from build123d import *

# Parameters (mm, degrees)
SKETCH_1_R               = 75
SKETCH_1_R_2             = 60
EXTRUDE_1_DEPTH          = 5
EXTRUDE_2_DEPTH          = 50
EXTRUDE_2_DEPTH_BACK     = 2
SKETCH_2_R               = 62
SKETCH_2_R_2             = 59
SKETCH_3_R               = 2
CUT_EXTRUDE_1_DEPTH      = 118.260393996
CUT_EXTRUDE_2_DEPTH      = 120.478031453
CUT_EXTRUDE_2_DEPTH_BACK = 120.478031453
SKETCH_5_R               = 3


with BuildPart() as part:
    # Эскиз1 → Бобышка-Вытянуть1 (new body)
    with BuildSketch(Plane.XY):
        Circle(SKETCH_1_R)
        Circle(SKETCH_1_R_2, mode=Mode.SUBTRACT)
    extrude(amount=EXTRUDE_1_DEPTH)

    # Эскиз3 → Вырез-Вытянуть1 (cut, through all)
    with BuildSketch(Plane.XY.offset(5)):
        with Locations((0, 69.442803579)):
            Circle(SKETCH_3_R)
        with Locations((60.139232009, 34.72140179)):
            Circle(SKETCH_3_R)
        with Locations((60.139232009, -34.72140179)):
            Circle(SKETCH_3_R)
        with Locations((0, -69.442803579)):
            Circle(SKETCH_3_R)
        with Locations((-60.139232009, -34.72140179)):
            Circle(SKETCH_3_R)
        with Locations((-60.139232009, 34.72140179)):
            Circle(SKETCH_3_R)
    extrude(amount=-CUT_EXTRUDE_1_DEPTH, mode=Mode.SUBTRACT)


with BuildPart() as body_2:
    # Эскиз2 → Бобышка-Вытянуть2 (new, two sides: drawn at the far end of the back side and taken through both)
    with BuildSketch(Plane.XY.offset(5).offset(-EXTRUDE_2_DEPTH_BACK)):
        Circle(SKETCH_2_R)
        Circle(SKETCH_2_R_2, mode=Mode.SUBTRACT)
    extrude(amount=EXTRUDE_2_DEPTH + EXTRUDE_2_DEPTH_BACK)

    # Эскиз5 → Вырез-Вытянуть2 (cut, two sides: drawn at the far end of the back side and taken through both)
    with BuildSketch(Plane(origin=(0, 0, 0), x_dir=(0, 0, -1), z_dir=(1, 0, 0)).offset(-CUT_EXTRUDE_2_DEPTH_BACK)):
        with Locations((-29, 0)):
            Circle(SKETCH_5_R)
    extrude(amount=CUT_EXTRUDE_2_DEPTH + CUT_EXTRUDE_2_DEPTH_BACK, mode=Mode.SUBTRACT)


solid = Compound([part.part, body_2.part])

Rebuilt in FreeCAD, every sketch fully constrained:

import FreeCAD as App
import Part
import Sketcher

doc = App.newDocument("Part")
body = doc.addObject("PartDesign::Body", "Body")

sketch1 = doc.addObject("Sketcher::SketchObject", "Sketch")
body.addObject(sketch1)
sketch1.AttachmentSupport = (doc.XY_Plane, [""])
sketch1.MapMode = "FlatFace"
sketch1.addGeometry([
    Part.Circle(App.Vector(0, 0, 0), App.Vector(0, 0, 1), 75),
    Part.Circle(App.Vector(0, 0, 0), App.Vector(0, 0, 1), 60),
], False)
sketch1.addConstraint([
    Sketcher.Constraint("Coincident", 0, 3, -1, 1),
    Sketcher.Constraint("Coincident", 1, 3, -1, 1),
    Sketcher.Constraint("Diameter", 0, 150.0),
    Sketcher.Constraint("Diameter", 1, 120.0),
])
pad1 = doc.addObject("PartDesign::Pad", "Pad")
body.addObject(pad1)
pad1.Profile = sketch1
pad1.Length = 5

sketch2 = doc.addObject("Sketcher::SketchObject", "Sketch001")
body.addObject(sketch2)
sketch2.AttachmentSupport = (doc.XY_Plane, [""])
sketch2.MapMode = "FlatFace"
sketch2.AttachmentOffset = App.Placement(App.Vector(0, 0, 5), App.Rotation())
sketch2.addGeometry([
    Part.Circle(App.Vector(0, 69.4, 0), App.Vector(0, 0, 1), 2),
    Part.Circle(App.Vector(60.1, 34.7, 0), App.Vector(0, 0, 1), 2),
    Part.Circle(App.Vector(60.1, -34.7, 0), App.Vector(0, 0, 1), 2),
    Part.Circle(App.Vector(0, -69.4, 0), App.Vector(0, 0, 1), 2),
    Part.Circle(App.Vector(-60.1, -34.7, 0), App.Vector(0, 0, 1), 2),
    Part.Circle(App.Vector(-60.1, 34.7, 0), App.Vector(0, 0, 1), 2),
], False)
sketch2.addConstraint([
    Sketcher.Constraint("Equal", 0, 1),
    Sketcher.Constraint("Equal", 1, 2),
    Sketcher.Constraint("Equal", 2, 3),
    Sketcher.Constraint("Equal", 3, 4),
    Sketcher.Constraint("Equal", 4, 5),
    Sketcher.Constraint("Symmetric", 0, 3, 3, 3, -1, 1),
    Sketcher.Constraint("Symmetric", 1, 3, 4, 3, -1, 1),
    Sketcher.Constraint("Symmetric", 2, 3, 5, 3, -1, 1),
    Sketcher.Constraint("Symmetric", 2, 3, 4, 3, -2),
    Sketcher.Constraint("PointOnObject", 0, 3, -2),
    Sketcher.Constraint("Diameter", 0, 4.0),
    Sketcher.Constraint("DistanceY", -1, 1, 1, 3, 34.721402),
    Sketcher.Constraint("DistanceY", 1, 3, 0, 3, 34.721402),
    Sketcher.Constraint("DistanceX", -1, 1, 1, 3, 60.139232),
])
pocket1 = doc.addObject("PartDesign::Pocket", "Pocket")
body.addObject(pocket1)
pocket1.Profile = sketch2
pocket1.Type = "ThroughAll"
body2 = doc.addObject("PartDesign::Body", "Body001")

sketch3 = doc.addObject("Sketcher::SketchObject", "Sketch002")
body2.addObject(sketch3)
sketch3.AttachmentSupport = (doc.getObject("XY_Plane001"), [""])
sketch3.MapMode = "FlatFace"
sketch3.AttachmentOffset = App.Placement(App.Vector(0, 0, 5), App.Rotation())
sketch3.addGeometry([
    Part.Circle(App.Vector(0, 0, 0), App.Vector(0, 0, 1), 62),
    Part.Circle(App.Vector(0, 0, 0), App.Vector(0, 0, 1), 59),
], False)
sketch3.addConstraint([
    Sketcher.Constraint("Coincident", 0, 3, -1, 1),
    Sketcher.Constraint("Coincident", 1, 3, -1, 1),
    Sketcher.Constraint("Diameter", 0, 124.0),
    Sketcher.Constraint("Diameter", 1, 118.0),
])
pad2 = doc.addObject("PartDesign::Pad", "Pad001")
body2.addObject(pad2)
pad2.Profile = sketch3
pad2.Type = "TwoLengths"
pad2.Length = 50
pad2.Length2 = 2

sketch4 = doc.addObject("Sketcher::SketchObject", "Sketch003")
body2.addObject(sketch4)
sketch4.AttachmentSupport = (doc.getObject("YZ_Plane001"), [""])
sketch4.MapMode = "FlatFace"
sketch4.addGeometry(Part.Circle(App.Vector(0, 29, 0), App.Vector(0, 0, 1), 3), False)
sketch4.addConstraint([
    Sketcher.Constraint("PointOnObject", 0, 3, -2),
    Sketcher.Constraint("Diameter", 0, 6.0),
    Sketcher.Constraint("DistanceY", -1, 1, 0, 3, 29.0),
])
pocket2 = doc.addObject("PartDesign::Pocket", "Pocket001")
body2.addObject(pocket2)
pocket2.Profile = sketch4
pocket2.Type = "ThroughAll"
pocket2.Midplane = True

doc.recompute()
